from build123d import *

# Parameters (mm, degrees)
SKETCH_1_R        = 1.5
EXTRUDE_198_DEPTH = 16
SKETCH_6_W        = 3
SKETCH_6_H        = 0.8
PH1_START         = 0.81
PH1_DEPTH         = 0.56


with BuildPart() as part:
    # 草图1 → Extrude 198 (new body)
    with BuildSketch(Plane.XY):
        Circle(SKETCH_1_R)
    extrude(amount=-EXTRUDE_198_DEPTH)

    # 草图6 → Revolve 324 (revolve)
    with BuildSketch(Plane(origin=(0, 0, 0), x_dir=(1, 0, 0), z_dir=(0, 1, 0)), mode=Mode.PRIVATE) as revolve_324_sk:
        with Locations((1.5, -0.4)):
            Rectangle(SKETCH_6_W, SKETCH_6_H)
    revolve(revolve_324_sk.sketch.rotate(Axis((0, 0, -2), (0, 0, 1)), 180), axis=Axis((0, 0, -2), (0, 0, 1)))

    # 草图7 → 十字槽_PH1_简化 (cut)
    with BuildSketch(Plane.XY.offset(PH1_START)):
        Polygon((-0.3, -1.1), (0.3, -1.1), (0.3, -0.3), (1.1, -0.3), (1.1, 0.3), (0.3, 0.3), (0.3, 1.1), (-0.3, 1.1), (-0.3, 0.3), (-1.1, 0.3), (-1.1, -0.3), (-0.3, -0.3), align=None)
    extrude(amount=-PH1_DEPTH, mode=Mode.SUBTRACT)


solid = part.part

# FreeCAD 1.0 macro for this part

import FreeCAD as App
import Part
import Sketcher
from FreeCAD import Vector

doc = App.newDocument("Part")
params = doc.addObject("Spreadsheet::Sheet", "Params")
for row, (alias, value) in enumerate([
    ("sketch1_diameter", "3 mm"),
    ("pad1_length", "16 mm"),
    ("sketch2_width", "3 mm"),
    ("sketch2_height", "0.8 mm"),
    ("revolution_angle", "360 deg"),
    ("sketch3_width", "0.6 mm"),
    ("sketch3_width2", "0.8 mm"),
    ("pocket1_length", "0.56 mm"),
], start=1):
    params.set(f"A{row}", alias)
    params.set(f"B{row}", "=" + value)
    params.setAlias(f"B{row}", alias)

body = doc.addObject("PartDesign::Body", "Body")

sketch1 = body.newObject("Sketcher::SketchObject", "Sketch")
sketch1.AttachmentSupport = (doc.getObject("XY_Plane"), [""])
sketch1.MapMode = "FlatFace"
sketch1.addGeometry(Part.Circle(Vector(0, 0, 0), Vector(0, 0, 1), 1.5), False)
sketch1.addConstraint(Sketcher.Constraint("Coincident", 0, 3, -1, 1))
sketch1.addConstraint(Sketcher.Constraint("Diameter", 0, 3.0))
sketch1.setExpression("Constraints[1]", "Params.sketch1_diameter")
pad1 = body.newObject("PartDesign::Pad", "Pad")
pad1.Profile = sketch1
pad1.setExpression("Length", "Params.pad1_length")
pad1.Reversed = True

sketch2 = body.newObject("Sketcher::SketchObject", "Sketch001")
sketch2.AttachmentSupport = (doc.getObject("XZ_Plane"), [""])
sketch2.MapMode = "FlatFace"
sketch2.addGeometry(Part.LineSegment(Vector(0, 0, 0), Vector(0, 0.8, 0)), False)
sketch2.addGeometry(Part.LineSegment(Vector(0, 0.8, 0), Vector(3, 0.8, 0)), False)
sketch2.addGeometry(Part.LineSegment(Vector(3, 0.8, 0), Vector(3, 0, 0)), False)
sketch2.addGeometry(Part.LineSegment(Vector(3, 0, 0), Vector(0, 0, 0)), False)
sketch2.addConstraint(Sketcher.Constraint("Coincident", 0, 2, 1, 1))
sketch2.addConstraint(Sketcher.Constraint("Coincident", 1, 2, 2, 1))
sketch2.addConstraint(Sketcher.Constraint("Coincident", 2, 2, 3, 1))
sketch2.addConstraint(Sketcher.Constraint("Coincident", 3, 2, 0, 1))
sketch2.addConstraint(Sketcher.Constraint("Vertical", 0))
sketch2.addConstraint(Sketcher.Constraint("Horizontal", 1))
sketch2.addConstraint(Sketcher.Constraint("Vertical", 2))
sketch2.addConstraint(Sketcher.Constraint("Horizontal", 3))
sketch2.addConstraint(Sketcher.Constraint("Coincident", 3, 2, -1, 1))
sketch2.addConstraint(Sketcher.Constraint("DistanceX", 1, 1, 1, 2, 3.0))
sketch2.addConstraint(Sketcher.Constraint("DistanceY", 0, 1, 0, 2, 0.8))
sketch2.setExpression("Constraints[9]", "Params.sketch2_width")
sketch2.setExpression("Constraints[10]", "Params.sketch2_height")
revolution = body.newObject("PartDesign::Revolution", "Revolution")
revolution.Profile = sketch2
revolution.ReferenceAxis = (sketch2, ["V_Axis"])
revolution.setExpression("Angle", "Params.revolution_angle")

sketch3 = body.newObject("Sketcher::SketchObject", "Sketch002")
sketch3.AttachmentSupport = (doc.getObject("XY_Plane"), [""])
sketch3.MapMode = "FlatFace"
sketch3.AttachmentOffset = App.Placement(Vector(0, 0, 0.81), App.Rotation())
sketch3.addGeometry(Part.LineSegment(Vector(-0.3, -1.1, 0), Vector(0.3, -1.1, 0)), False)
sketch3.addGeometry(Part.LineSegment(Vector(0.3, -1.1, 0), Vector(0.3, -0.3, 0)), False)
sketch3.addGeometry(Part.LineSegment(Vector(0.3, -0.3, 0), Vector(1.1, -0.3, 0)), False)
sketch3.addGeometry(Part.LineSegment(Vector(1.1, -0.3, 0), Vector(1.1, 0.3, 0)), False)
sketch3.addGeometry(Part.LineSegment(Vector(1.1, 0.3, 0), Vector(0.3, 0.3, 0)), False)
sketch3.addGeometry(Part.LineSegment(Vector(0.3, 0.3, 0), Vector(0.3, 1.1, 0)), False)
sketch3.addGeometry(Part.LineSegment(Vector(0.3, 1.1, 0), Vector(-0.3, 1.1, 0)), False)
sketch3.addGeometry(Part.LineSegment(Vector(-0.3, 1.1, 0), Vector(-0.3, 0.3, 0)), False)
sketch3.addGeometry(Part.LineSegment(Vector(-0.3, 0.3, 0), Vector(-1.1, 0.3, 0)), False)
sketch3.addGeometry(Part.LineSegment(Vector(-1.1, 0.3, 0), Vector(-1.1, -0.3, 0)), False)
sketch3.addGeometry(Part.LineSegment(Vector(-1.1, -0.3, 0), Vector(-0.3, -0.3, 0)), False)
sketch3.addGeometry(Part.LineSegment(Vector(-0.3, -0.3, 0), Vector(-0.3, -1.1, 0)), False)
sketch3.addConstraint(Sketcher.Constraint("Coincident", 0, 2, 1, 1))
sketch3.addConstraint(Sketcher.Constraint("Coincident", 1, 2, 2, 1))
sketch3.addConstraint(Sketcher.Constraint("Coincident", 2, 2, 3, 1))
sketch3.addConstraint(Sketcher.Constraint("Coincident", 3, 2, 4, 1))
sketch3.addConstraint(Sketcher.Constraint("Coincident", 4, 2, 5, 1))
sketch3.addConstraint(Sketcher.Constraint("Coincident", 5, 2, 6, 1))
sketch3.addConstraint(Sketcher.Constraint("Coincident", 6, 2, 7, 1))
sketch3.addConstraint(Sketcher.Constraint("Coincident", 7, 2, 8, 1))
sketch3.addConstraint(Sketcher.Constraint("Coincident", 8, 2, 9, 1))
sketch3.addConstraint(Sketcher.Constraint("Coincident", 9, 2, 10, 1))
sketch3.addConstraint(Sketcher.Constraint("Coincident", 10, 2, 11, 1))
sketch3.addConstraint(Sketcher.Constraint("Coincident", 11, 2, 0, 1))
sketch3.addConstraint(Sketcher.Constraint("Horizontal", 0))
sketch3.addConstraint(Sketcher.Constraint("Vertical", 1))
sketch3.addConstraint(Sketcher.Constraint("Horizontal", 2))
sketch3.addConstraint(Sketcher.Constraint("Vertical", 3))
sketch3.addConstraint(Sketcher.Constraint("Horizontal", 4))
sketch3.addConstraint(Sketcher.Constraint("Vertical", 5))
sketch3.addConstraint(Sketcher.Constraint("Horizontal", 6))
sketch3.addConstraint(Sketcher.Constraint("Vertical", 7))
sketch3.addConstraint(Sketcher.Constraint("Horizontal", 8))
sketch3.addConstraint(Sketcher.Constraint("Vertical", 9))
sketch3.addConstraint(Sketcher.Constraint("Horizontal", 10))
sketch3.addConstraint(Sketcher.Constraint("Vertical", 11))
sketch3.addConstraint(Sketcher.Constraint("Symmetric", 0, 2, 6, 2, -1, 1))
sketch3.addConstraint(Sketcher.Constraint("Symmetric", 2, 2, 8, 2, -1, 1))
sketch3.addConstraint(Sketcher.Constraint("Symmetric", 4, 2, 10, 2, -1, 1))
sketch3.addConstraint(Sketcher.Constraint("Symmetric", 4, 2, 7, 2, -2))
sketch3.addConstraint(Sketcher.Constraint("Equal", 10, 1))
sketch3.addConstraint(Sketcher.Constraint("Equal", 6, 3))
sketch3.addConstraint(Sketcher.Constraint("DistanceX", 0, 1, 0, 2, 0.6))
sketch3.addConstraint(Sketcher.Constraint("DistanceX", 2, 1, 2, 2, 0.8))
sketch3.setExpression("Constraints[30]", "Params.sketch3_width")
sketch3.setExpression("Constraints[31]", "Params.sketch3_width2")
pocket1 = body.newObject("PartDesign::Pocket", "Pocket")
pocket1.Profile = sketch3
pocket1.setExpression("Length", "Params.pocket1_length")

doc.recompute()
